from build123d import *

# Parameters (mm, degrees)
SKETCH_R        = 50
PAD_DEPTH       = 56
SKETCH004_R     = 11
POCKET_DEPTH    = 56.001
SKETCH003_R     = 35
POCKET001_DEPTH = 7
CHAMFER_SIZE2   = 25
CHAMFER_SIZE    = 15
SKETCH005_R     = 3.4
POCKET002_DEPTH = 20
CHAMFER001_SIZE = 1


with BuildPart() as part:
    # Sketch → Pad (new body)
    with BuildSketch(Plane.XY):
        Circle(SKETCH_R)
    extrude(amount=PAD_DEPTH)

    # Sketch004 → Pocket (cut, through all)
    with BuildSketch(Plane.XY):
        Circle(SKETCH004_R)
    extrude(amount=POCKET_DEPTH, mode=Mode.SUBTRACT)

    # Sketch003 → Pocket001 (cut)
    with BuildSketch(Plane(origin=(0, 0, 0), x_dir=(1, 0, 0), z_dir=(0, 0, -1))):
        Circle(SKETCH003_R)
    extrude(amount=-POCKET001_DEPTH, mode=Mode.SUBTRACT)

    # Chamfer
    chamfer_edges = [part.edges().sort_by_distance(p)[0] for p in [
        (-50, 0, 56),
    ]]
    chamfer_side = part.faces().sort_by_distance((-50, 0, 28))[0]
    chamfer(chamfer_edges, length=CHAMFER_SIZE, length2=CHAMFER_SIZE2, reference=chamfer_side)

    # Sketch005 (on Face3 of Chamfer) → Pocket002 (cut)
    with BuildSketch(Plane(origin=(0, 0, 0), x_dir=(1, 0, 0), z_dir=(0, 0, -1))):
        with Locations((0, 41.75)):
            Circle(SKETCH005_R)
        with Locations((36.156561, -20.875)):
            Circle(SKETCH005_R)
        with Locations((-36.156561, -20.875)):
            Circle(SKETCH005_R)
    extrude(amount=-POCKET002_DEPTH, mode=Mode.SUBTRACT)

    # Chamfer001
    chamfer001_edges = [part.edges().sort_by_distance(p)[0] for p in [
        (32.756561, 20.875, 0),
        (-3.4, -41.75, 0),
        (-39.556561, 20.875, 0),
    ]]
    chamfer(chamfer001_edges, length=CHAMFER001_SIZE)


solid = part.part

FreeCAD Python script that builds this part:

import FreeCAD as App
import Part
import Sketcher

V = App.Vector


def edges_at(feature, points):
    """Names of the edges that pass closest to the given points."""
    edges = feature.Shape.Edges
    near = lambda p: min(range(len(edges)), key=lambda i: edges[i].distToShape(Part.Vertex(*p))[0])
    return sorted({f"Edge{near(p) + 1}" for p in points})

doc = App.newDocument("Part")
body = doc.addObject("PartDesign::Body", "Body")

sketch1 = body.newObject("Sketcher::SketchObject", "Sketch")
sketch1.AttachmentSupport = (doc.getObject("XY_Plane"), [""])
sketch1.MapMode = "FlatFace"
sketch1.addGeometry(Part.Circle(V(0, 0, 0), V(0, 0, 1), 50), False)
sketch1.addConstraint([
    Sketcher.Constraint("Coincident", 0, 3, -1, 1),
    Sketcher.Constraint("Diameter", 0, 100.0),
])
pad1 = body.newObject("PartDesign::Pad", "Pad")
pad1.Profile = sketch1
pad1.Length = 56

sketch2 = body.newObject("Sketcher::SketchObject", "Sketch001")
sketch2.AttachmentSupport = (doc.getObject("XY_Plane"), [""])
sketch2.MapMode = "FlatFace"
sketch2.addGeometry(Part.Circle(V(0, 0, 0), V(0, 0, 1), 11), False)
sketch2.addConstraint([
    Sketcher.Constraint("Coincident", 0, 3, -1, 1),
    Sketcher.Constraint("Diameter", 0, 22.0),
])
pocket1 = body.newObject("PartDesign::Pocket", "Pocket")
pocket1.Profile = sketch2
pocket1.Type = "ThroughAll"
pocket1.Reversed = True

sketch3 = body.newObject("Sketcher::SketchObject", "Sketch002")
sketch3.AttachmentSupport = (doc.getObject("XY_Plane"), [""])
sketch3.MapMode = "FlatFace"
sketch3.addGeometry(Part.Circle(V(0, 0, 0), V(0, 0, 1), 35), False)
sketch3.addConstraint([
    Sketcher.Constraint("Coincident", 0, 3, -1, 1),
    Sketcher.Constraint("Diameter", 0, 70.0),
])
pocket2 = body.newObject("PartDesign::Pocket", "Pocket001")
pocket2.Profile = sketch3
pocket2.Length = 7
pocket2.Reversed = True
doc.recompute()

chamfer = body.newObject("PartDesign::Chamfer", "Chamfer")
chamfer.Base = (pocket2, edges_at(pocket2, [(-50, 0, 56)]))
chamfer.ChamferType = "Two distances"
chamfer.Size = 15
chamfer.Size2 = 25

sketch4 = body.newObject("Sketcher::SketchObject", "Sketch003")
sketch4.AttachmentSupport = (doc.getObject("XY_Plane"), [""])
sketch4.MapMode = "FlatFace"
sketch4.addGeometry([
    Part.Circle(V(0, -41.8, 0), V(0, 0, 1), 3.4),
    Part.Circle(V(36.2, 20.9, 0), V(0, 0, 1), 3.4),
    Part.Circle(V(-36.2, 20.9, 0), V(0, 0, 1), 3.4),
], False)
sketch4.addConstraint([
    Sketcher.Constraint("Equal", 0, 1),
    Sketcher.Constraint("Equal", 1, 2),
    Sketcher.Constraint("Symmetric", 1, 3, 2, 3, -2),
    Sketcher.Constraint("PointOnObject", 0, 3, -2),
    Sketcher.Constraint("Diameter", 0, 6.8),
    Sketcher.Constraint("DistanceY", 0, 3, -1, 1, 41.75),
    Sketcher.Constraint("DistanceY", -1, 1, 1, 3, 20.875),
    Sketcher.Constraint("DistanceX", -1, 1, 1, 3, 36.156561),
])
pocket3 = body.newObject("PartDesign::Pocket", "Pocket002")
pocket3.Profile = sketch4
pocket3.Length = 20
pocket3.Reversed = True
doc.recompute()

chamfer2 = body.newObject("PartDesign::Chamfer", "Chamfer001")
chamfer2.Base = (pocket3, edges_at(pocket3, [(32.757, 20.875, 0), (-3.4, -41.75, 0), (-39.557, 20.875, 0)]))
chamfer2.Size = 1

doc.recompute()
